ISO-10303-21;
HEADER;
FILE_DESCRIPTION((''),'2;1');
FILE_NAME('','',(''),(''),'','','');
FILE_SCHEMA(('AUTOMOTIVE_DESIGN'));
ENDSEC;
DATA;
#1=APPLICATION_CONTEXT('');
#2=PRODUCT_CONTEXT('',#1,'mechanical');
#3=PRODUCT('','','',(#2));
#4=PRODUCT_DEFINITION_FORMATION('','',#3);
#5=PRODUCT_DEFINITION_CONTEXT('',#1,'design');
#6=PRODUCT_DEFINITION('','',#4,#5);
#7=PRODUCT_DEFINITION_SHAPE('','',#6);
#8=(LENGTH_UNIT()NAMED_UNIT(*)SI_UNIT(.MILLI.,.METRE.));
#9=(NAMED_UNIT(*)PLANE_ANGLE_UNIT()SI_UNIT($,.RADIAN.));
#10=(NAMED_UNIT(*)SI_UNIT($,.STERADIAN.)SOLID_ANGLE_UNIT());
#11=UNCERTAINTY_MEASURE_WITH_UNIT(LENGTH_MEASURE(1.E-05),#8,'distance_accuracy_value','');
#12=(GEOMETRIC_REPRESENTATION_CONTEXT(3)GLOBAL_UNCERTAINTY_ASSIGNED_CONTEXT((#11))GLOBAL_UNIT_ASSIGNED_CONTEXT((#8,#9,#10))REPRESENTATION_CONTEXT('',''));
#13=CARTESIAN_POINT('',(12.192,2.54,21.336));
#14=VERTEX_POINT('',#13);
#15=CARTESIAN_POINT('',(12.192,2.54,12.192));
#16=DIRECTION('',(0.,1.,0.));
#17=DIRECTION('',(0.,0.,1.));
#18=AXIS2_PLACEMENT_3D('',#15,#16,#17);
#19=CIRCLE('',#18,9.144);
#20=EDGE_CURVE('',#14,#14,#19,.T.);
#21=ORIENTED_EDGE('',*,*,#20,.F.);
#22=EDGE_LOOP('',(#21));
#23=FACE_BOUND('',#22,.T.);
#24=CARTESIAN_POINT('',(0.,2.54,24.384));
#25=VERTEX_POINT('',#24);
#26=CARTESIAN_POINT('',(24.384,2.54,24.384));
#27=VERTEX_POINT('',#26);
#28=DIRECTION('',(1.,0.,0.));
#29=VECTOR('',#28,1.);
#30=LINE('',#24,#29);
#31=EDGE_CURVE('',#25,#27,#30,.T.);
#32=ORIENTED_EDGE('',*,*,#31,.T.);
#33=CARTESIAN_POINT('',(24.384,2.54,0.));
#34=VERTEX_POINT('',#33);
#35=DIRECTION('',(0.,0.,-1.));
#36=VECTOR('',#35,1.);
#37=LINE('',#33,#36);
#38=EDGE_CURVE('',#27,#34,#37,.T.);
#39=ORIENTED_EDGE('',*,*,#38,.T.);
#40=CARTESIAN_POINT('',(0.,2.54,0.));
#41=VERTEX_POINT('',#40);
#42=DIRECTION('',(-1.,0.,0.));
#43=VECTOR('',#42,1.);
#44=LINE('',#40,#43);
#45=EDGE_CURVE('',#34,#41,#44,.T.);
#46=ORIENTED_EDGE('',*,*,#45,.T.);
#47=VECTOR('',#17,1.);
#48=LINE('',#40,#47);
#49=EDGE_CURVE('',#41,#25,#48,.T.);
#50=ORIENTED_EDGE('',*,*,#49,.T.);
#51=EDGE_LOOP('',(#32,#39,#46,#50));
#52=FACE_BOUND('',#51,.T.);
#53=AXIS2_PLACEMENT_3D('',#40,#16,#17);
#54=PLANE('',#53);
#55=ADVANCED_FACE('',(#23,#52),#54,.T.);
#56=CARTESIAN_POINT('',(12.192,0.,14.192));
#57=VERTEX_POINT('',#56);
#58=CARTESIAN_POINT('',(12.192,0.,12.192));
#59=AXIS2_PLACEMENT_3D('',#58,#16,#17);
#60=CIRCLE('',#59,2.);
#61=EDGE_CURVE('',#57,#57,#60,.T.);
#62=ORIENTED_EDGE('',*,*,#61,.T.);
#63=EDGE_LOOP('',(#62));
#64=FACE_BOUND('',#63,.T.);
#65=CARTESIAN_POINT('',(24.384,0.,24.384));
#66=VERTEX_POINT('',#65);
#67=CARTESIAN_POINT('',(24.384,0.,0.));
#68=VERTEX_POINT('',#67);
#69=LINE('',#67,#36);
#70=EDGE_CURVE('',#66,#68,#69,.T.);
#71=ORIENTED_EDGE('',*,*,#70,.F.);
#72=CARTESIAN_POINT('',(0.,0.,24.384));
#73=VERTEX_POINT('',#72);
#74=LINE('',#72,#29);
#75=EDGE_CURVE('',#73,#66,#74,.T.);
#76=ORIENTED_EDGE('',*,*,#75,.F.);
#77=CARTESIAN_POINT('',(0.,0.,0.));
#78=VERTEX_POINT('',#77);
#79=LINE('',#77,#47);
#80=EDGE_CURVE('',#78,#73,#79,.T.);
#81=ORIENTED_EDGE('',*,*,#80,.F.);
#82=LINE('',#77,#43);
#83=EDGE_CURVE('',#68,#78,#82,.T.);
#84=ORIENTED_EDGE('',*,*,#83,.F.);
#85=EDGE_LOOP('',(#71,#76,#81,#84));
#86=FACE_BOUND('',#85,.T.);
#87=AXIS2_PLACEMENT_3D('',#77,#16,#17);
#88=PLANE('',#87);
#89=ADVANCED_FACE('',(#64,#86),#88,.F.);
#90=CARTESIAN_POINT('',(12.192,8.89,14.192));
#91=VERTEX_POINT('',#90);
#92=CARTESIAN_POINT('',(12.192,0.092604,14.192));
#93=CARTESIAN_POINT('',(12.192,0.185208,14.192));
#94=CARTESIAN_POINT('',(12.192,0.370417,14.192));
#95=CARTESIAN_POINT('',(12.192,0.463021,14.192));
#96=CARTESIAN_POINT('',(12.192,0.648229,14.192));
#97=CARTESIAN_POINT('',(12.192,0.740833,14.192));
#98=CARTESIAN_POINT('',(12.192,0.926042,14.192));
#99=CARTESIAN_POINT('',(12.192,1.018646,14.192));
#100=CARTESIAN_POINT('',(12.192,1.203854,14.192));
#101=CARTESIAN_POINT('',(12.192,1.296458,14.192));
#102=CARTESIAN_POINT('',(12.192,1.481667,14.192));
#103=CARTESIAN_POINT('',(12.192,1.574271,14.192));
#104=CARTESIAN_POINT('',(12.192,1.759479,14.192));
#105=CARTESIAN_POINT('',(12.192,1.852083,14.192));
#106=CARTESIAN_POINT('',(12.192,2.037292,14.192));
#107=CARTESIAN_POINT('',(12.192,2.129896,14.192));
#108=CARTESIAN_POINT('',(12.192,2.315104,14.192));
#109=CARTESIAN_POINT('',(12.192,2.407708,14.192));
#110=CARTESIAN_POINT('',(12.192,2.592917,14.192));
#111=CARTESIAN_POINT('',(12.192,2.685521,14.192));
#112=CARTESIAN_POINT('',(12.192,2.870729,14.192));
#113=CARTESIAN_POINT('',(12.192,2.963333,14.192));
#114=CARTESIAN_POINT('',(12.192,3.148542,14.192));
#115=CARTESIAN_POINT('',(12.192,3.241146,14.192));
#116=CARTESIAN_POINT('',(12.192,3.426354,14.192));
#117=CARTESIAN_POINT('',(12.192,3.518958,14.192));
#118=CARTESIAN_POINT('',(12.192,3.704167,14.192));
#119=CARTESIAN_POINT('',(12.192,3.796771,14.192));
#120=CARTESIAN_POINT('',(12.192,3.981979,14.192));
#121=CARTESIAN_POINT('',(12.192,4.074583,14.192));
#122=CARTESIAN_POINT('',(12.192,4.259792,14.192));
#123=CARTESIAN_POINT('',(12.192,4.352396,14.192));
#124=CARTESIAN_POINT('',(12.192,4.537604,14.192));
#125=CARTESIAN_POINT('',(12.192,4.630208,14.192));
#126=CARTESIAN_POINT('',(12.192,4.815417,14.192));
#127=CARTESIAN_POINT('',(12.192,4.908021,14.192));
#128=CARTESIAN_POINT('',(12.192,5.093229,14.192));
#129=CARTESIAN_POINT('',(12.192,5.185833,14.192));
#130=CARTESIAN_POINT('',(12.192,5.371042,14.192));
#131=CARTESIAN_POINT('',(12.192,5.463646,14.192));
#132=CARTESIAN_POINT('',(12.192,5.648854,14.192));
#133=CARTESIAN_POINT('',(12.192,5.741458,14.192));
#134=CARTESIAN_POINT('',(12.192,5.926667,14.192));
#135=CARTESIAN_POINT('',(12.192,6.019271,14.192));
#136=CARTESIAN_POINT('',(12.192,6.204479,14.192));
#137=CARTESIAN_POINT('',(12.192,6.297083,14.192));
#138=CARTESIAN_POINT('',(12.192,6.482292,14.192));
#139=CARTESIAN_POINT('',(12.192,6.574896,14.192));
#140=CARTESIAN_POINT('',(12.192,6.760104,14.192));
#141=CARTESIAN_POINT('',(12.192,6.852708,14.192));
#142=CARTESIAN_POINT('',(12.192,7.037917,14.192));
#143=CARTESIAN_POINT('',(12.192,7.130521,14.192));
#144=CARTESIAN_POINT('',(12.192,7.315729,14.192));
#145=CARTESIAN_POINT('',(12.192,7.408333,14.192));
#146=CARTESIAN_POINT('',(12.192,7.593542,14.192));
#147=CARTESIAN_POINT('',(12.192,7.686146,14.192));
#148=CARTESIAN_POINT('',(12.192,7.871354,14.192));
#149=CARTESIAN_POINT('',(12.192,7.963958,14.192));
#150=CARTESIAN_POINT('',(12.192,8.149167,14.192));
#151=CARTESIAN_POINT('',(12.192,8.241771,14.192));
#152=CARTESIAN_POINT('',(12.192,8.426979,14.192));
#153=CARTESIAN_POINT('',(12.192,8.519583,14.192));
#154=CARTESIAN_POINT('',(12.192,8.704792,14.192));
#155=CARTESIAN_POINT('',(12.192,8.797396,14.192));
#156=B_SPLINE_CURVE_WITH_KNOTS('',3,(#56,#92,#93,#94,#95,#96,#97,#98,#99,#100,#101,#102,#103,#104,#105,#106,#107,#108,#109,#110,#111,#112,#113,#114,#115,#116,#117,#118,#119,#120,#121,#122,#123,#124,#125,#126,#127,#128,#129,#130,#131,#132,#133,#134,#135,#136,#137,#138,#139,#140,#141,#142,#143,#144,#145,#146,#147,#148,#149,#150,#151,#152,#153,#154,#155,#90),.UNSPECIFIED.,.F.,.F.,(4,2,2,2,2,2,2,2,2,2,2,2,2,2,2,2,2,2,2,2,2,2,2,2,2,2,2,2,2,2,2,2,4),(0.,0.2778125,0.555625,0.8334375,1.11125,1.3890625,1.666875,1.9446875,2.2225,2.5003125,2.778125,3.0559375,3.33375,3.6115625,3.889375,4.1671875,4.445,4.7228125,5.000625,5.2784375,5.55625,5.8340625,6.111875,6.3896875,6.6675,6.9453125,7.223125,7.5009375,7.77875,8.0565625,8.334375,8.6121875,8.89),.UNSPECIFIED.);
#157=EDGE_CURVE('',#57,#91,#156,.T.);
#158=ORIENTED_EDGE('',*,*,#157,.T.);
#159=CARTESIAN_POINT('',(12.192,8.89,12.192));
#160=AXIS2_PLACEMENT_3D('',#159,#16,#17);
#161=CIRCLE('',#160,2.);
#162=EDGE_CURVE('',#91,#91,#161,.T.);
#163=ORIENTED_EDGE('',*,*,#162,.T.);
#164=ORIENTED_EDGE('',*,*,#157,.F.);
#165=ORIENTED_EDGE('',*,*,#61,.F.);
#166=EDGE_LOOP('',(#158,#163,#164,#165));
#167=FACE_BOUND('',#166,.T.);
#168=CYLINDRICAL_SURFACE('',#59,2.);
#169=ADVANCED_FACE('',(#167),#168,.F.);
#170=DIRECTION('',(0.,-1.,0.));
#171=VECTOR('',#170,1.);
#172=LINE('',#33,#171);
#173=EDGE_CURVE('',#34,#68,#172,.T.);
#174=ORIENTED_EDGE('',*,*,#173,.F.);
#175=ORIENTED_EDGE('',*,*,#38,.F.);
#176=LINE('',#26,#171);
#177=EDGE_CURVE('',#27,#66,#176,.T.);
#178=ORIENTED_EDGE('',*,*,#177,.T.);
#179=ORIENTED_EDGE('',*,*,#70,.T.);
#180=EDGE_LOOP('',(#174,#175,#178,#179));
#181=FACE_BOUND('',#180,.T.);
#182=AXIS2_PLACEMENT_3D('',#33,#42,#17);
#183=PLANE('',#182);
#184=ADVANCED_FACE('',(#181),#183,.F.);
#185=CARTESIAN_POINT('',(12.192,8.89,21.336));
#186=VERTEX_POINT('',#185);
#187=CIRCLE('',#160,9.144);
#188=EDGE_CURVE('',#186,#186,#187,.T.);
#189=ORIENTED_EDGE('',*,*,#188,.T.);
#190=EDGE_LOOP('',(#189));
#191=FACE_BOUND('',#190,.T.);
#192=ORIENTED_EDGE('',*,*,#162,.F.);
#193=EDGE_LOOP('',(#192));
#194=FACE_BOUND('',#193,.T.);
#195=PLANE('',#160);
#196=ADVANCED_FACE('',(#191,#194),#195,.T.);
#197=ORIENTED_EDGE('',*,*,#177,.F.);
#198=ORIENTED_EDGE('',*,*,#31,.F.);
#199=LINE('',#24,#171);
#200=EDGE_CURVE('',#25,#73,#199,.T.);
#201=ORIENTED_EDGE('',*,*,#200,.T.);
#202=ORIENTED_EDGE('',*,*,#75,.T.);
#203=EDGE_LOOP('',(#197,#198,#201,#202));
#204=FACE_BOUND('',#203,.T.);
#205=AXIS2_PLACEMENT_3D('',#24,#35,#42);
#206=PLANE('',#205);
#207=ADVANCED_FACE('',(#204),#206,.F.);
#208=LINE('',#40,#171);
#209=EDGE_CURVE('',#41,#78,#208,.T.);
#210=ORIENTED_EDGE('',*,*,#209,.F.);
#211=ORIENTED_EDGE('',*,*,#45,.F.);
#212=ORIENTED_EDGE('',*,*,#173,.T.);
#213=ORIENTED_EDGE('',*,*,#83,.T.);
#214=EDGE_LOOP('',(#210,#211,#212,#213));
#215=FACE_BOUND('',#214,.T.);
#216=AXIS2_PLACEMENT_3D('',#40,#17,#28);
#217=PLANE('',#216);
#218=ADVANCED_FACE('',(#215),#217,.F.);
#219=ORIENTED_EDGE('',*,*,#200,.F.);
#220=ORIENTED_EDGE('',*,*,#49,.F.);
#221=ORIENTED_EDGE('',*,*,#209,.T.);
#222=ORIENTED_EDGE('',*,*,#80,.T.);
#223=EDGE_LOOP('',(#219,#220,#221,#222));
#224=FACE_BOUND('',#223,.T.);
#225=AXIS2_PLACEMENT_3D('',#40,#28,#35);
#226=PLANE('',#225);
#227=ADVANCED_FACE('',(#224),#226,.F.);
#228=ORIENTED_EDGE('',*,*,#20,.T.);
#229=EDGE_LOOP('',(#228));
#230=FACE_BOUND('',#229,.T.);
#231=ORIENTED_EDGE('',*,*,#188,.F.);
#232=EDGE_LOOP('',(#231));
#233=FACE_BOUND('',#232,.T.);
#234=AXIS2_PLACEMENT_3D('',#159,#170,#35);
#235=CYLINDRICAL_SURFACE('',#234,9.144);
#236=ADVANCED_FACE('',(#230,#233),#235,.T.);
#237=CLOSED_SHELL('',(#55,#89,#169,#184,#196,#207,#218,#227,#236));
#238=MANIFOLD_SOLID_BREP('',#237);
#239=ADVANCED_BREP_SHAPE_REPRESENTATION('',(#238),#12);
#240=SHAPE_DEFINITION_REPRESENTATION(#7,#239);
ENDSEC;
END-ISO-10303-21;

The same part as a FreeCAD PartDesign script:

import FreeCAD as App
import Part
import Sketcher
Q = App.Units.Quantity

doc = App.newDocument("Part")
body = doc.addObject("PartDesign::Body", "Body")

# Sketch on XZ plane
sketch1 = body.newObject("Sketcher::SketchObject", "Sketch")
sketch1.AttachmentSupport = (doc.getObject("XZ_Plane"), [""])
sketch1.MapMode = "FlatFace"
sketch1.addGeometry(Part.LineSegment(App.Vector(0, 0, 0), App.Vector(0, 24.384, 0)), False)
sketch1.addGeometry(Part.LineSegment(App.Vector(0, 24.384, 0), App.Vector(24.384, 24.384, 0)), False)
sketch1.addGeometry(Part.LineSegment(App.Vector(24.384, 24.384, 0), App.Vector(24.384, 0, 0)), False)
sketch1.addGeometry(Part.LineSegment(App.Vector(24.384, 0, 0), App.Vector(0, 0, 0)), False)
sketch1.addConstraint(Sketcher.Constraint("Coincident", 0, 2, 1, 1))
sketch1.addConstraint(Sketcher.Constraint("Coincident", 1, 2, 2, 1))
sketch1.addConstraint(Sketcher.Constraint("Coincident", 2, 2, 3, 1))
sketch1.addConstraint(Sketcher.Constraint("Coincident", 3, 2, 0, 1))
sketch1.addConstraint(Sketcher.Constraint("Vertical", 0))
sketch1.addConstraint(Sketcher.Constraint("Horizontal", 1))
sketch1.addConstraint(Sketcher.Constraint("Vertical", 2))
sketch1.addConstraint(Sketcher.Constraint("Horizontal", 3))
sketch1.addConstraint(Sketcher.Constraint("Coincident", 3, 2, -1, 1))
sketch1.addConstraint(Sketcher.Constraint("Equal", 3, 0))
sketch1.addConstraint(Sketcher.Constraint("DistanceX", 1, 1, 1, 2, Q("0.96 in")))
pad1 = body.newObject("PartDesign::Pad", "Pad")
pad1.Profile = sketch1
pad1.Length = Q("0.1 in")
pad1.Reversed = True

# Sketch on XZ plane
sketch2 = body.newObject("Sketcher::SketchObject", "Sketch001")
sketch2.AttachmentSupport = (doc.getObject("XZ_Plane"), [""])
sketch2.MapMode = "FlatFace"
sketch2.AttachmentOffset = App.Placement(App.Vector(0, 0, -0.1 * 25.4), App.Rotation())
sketch2.addGeometry(Part.Circle(App.Vector(12.192, 12.192, 0), App.Vector(0, 0, 1), 9.144), False)
sketch2.addConstraint(Sketcher.Constraint("Diameter", 0, Q("0.72 in")))
sketch2.addConstraint(Sketcher.Constraint("DistanceX", -1, 1, 0, 3, Q("0.48 in")))
sketch2.addConstraint(Sketcher.Constraint("DistanceY", -1, 1, 0, 3, Q("0.48 in")))
pad2 = body.newObject("PartDesign::Pad", "Pad001")
pad2.Profile = sketch2
pad2.Length = Q("0.25 in")
pad2.Reversed = True

# Sketch on XZ plane
sketch3 = body.newObject("Sketcher::SketchObject", "Sketch002")
sketch3.AttachmentSupport = (doc.getObject("XZ_Plane"), [""])
sketch3.MapMode = "FlatFace"
sketch3.AttachmentOffset = App.Placement(App.Vector(0, 0, -0.35 * 25.4), App.Rotation())
sketch3.addGeometry(Part.Circle(App.Vector(12.192, 12.192, 0), App.Vector(0, 0, 1), 2), False)
sketch3.addConstraint(Sketcher.Constraint("Diameter", 0, 4.0))
sketch3.addConstraint(Sketcher.Constraint("DistanceX", -1, 1, 0, 3, Q("0.48 in")))
sketch3.addConstraint(Sketcher.Constraint("DistanceY", -1, 1, 0, 3, Q("0.48 in")))
pocket1 = body.newObject("PartDesign::Pocket", "Pocket")
pocket1.Profile = sketch3
pocket1.Type = "ThroughAll"
pocket1.Reversed = True

doc.recompute()
